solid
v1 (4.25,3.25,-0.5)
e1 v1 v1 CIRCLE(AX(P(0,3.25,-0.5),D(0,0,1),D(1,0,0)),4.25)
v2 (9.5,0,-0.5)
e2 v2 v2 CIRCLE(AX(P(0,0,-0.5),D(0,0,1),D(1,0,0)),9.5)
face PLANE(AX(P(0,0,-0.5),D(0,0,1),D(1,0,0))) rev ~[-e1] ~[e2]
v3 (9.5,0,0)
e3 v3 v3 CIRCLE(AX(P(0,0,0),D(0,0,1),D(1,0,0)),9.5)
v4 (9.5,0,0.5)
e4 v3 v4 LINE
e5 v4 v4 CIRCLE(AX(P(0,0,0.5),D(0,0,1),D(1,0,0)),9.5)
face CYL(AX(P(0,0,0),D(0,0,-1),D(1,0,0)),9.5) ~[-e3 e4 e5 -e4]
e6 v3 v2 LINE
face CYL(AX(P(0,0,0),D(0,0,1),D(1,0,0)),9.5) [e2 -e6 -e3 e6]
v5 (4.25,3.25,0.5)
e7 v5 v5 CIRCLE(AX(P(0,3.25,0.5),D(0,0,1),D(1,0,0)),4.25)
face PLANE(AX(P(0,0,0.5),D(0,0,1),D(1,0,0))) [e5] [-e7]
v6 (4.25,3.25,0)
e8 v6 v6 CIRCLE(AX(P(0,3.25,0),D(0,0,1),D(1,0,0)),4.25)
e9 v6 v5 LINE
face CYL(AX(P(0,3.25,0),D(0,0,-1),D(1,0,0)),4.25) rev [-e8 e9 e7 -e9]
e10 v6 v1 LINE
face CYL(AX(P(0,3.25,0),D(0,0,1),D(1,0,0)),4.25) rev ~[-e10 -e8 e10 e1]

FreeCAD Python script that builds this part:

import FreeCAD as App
import Part
import Sketcher
from FreeCAD import Vector

doc = App.newDocument("Part")
body = doc.addObject("PartDesign::Body", "Body")

sketch1 = body.newObject("Sketcher::SketchObject", "Sketch")
sketch1.AttachmentSupport = (doc.getObject("XY_Plane"), [""])
sketch1.MapMode = "FlatFace"
sketch1.addGeometry([
    Part.Circle(Vector(0, 0, 0), Vector(0, 0, 1), 9.5),
    Part.Circle(Vector(0, 3.2, 0), Vector(0, 0, 1), 4.2),
], False)
sketch1.addConstraint([
    Sketcher.Constraint("Coincident", 0, 3, -1, 1),
    Sketcher.Constraint("PointOnObject", 1, 3, -2),
    Sketcher.Constraint("Diameter", 0, 19.0),
    Sketcher.Constraint("Diameter", 1, 8.5),
    Sketcher.Constraint("DistanceY", -1, 1, 1, 3, 3.25),
])
pad1 = body.newObject("PartDesign::Pad", "Pad")
pad1.Profile = sketch1
pad1.Length = 1
pad1.Midplane = True

doc.recompute()
